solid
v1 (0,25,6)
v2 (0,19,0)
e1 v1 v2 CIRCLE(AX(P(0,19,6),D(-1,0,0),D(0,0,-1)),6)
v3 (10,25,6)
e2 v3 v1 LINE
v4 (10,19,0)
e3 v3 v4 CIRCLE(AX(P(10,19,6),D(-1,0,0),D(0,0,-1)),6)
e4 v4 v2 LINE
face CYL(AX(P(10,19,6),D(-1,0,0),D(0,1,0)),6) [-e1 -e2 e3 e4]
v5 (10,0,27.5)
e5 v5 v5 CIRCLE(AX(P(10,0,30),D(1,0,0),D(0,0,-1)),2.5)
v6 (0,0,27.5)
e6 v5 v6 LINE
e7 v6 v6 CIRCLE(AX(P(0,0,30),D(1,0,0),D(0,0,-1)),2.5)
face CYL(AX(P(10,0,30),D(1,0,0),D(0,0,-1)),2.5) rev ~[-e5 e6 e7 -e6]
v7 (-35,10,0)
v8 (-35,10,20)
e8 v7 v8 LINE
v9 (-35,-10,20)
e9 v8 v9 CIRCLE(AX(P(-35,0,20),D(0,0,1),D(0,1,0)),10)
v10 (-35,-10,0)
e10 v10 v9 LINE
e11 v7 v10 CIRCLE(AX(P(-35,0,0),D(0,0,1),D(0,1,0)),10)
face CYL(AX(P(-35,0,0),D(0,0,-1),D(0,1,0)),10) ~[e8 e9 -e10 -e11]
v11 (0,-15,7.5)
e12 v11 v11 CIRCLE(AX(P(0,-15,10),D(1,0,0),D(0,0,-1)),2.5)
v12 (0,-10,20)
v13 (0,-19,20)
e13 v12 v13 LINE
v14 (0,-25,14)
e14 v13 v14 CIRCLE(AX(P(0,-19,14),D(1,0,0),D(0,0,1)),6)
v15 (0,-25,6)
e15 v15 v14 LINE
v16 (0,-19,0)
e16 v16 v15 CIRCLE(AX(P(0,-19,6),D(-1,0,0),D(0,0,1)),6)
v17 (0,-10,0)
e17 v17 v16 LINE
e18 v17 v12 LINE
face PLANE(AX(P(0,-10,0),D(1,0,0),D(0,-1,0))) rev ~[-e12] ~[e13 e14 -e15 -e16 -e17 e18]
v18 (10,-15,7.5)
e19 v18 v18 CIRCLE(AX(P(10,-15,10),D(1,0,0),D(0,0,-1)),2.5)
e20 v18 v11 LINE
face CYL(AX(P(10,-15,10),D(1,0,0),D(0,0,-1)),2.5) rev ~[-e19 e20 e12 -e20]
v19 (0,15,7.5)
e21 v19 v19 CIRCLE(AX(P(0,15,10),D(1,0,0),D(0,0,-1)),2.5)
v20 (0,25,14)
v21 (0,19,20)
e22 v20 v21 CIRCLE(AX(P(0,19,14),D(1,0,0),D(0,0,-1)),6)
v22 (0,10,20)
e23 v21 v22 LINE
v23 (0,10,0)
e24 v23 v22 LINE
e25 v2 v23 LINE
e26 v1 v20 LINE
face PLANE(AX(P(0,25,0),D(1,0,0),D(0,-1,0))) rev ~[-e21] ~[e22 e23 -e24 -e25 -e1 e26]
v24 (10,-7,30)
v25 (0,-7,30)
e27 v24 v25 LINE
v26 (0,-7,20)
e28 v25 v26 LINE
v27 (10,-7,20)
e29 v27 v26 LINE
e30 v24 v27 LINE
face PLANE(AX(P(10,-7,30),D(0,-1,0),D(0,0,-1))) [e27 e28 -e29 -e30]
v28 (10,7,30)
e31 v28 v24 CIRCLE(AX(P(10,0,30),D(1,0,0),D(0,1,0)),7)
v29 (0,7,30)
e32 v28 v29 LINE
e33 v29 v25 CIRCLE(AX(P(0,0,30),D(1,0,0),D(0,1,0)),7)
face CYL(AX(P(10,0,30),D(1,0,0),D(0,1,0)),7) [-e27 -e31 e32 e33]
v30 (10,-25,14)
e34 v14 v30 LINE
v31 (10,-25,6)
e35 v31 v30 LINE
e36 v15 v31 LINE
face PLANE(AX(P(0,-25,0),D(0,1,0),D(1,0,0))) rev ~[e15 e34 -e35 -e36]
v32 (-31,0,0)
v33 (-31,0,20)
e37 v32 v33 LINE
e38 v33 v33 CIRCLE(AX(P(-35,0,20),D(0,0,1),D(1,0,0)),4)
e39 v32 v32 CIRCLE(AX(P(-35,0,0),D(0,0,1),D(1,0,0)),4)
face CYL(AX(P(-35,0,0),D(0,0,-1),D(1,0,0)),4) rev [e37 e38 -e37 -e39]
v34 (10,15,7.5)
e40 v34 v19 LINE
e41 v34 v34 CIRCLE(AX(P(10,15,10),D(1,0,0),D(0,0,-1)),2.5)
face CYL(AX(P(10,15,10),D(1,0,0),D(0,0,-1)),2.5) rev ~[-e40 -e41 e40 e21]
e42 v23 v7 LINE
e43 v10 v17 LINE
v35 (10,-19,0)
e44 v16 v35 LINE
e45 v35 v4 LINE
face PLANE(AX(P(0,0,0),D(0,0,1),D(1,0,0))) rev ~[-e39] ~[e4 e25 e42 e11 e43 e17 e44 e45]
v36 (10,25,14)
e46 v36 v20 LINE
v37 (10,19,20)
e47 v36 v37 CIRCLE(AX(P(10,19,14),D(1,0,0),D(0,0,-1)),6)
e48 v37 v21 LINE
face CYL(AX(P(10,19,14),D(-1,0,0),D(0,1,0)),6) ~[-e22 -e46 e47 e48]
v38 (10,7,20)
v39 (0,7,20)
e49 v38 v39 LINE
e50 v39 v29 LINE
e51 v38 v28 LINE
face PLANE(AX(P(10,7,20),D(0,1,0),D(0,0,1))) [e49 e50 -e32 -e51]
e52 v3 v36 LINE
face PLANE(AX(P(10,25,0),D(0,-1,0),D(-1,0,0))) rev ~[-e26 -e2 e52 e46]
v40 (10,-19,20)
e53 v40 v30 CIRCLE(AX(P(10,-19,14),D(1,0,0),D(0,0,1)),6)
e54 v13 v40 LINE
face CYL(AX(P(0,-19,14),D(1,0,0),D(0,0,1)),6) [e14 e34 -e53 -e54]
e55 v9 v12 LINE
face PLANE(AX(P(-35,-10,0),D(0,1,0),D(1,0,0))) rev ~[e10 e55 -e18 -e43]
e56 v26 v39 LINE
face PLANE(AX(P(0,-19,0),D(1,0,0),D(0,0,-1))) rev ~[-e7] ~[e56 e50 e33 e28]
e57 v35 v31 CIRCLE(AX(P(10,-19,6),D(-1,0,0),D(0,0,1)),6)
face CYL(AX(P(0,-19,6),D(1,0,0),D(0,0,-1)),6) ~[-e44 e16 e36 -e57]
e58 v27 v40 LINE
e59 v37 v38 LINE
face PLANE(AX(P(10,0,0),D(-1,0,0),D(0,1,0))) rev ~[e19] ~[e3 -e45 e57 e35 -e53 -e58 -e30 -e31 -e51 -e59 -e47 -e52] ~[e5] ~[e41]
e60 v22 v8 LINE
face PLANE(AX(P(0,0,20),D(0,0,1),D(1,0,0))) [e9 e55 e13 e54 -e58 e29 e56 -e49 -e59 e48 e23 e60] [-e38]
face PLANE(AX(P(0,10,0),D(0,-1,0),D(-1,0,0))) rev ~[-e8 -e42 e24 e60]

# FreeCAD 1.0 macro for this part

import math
import FreeCAD as App
import Part
import Sketcher
Q = App.Units.Quantity


def edges_at(feature, points):
    """Names of the edges that pass closest to the given points."""
    edges = feature.Shape.Edges
    near = lambda p: min(range(len(edges)), key=lambda i: edges[i].distToShape(Part.Vertex(*p))[0])
    return sorted({f"Edge{near(p) + 1}" for p in points})

doc = App.newDocument("Part")
body = doc.addObject("PartDesign::Body", "Body")

# Sketch on XY plane
sketch1 = body.newObject("Sketcher::SketchObject", "Sketch")
sketch1.AttachmentSupport = (doc.getObject("XY_Plane"), [""])
sketch1.MapMode = "FlatFace"
sketch1.addGeometry([
    Part.LineSegment(App.Vector(10, 25, 0), App.Vector(0, 25, 0)),  # 0
    Part.LineSegment(App.Vector(0, 25, 0), App.Vector(0, 10, 0)),  # 1
    Part.LineSegment(App.Vector(0, 10, 0), App.Vector(-35, 10, 0)),  # 2
    Part.ArcOfCircle(Part.Circle(App.Vector(-35, 0, 0), App.Vector(0, 0, 1), 10), math.radians(90), math.radians(270)),  # 3
    Part.LineSegment(App.Vector(-35, -10, 0), App.Vector(0, -10, 0)),  # 4
    Part.LineSegment(App.Vector(0, -10, 0), App.Vector(0, -25, 0)),  # 5
    Part.LineSegment(App.Vector(0, -25, 0), App.Vector(10, -25, 0)),  # 6
    Part.LineSegment(App.Vector(10, -25, 0), App.Vector(10, 25, 0)),  # 7
    Part.Circle(App.Vector(-35, 0, 0), App.Vector(0, 0, 1), 4),  # 8
], False)
sketch1.addConstraint([
    Sketcher.Constraint("Coincident", 0, 2, 1, 1),
    Sketcher.Constraint("Coincident", 1, 2, 2, 1),
    Sketcher.Constraint("Tangent", 2, 2, 3, 1),
    Sketcher.Constraint("Tangent", 3, 2, 4, 1),
    Sketcher.Constraint("Coincident", 4, 2, 5, 1),
    Sketcher.Constraint("Coincident", 5, 2, 6, 1),
    Sketcher.Constraint("Coincident", 6, 2, 7, 1),
    Sketcher.Constraint("Coincident", 7, 2, 0, 1),
    Sketcher.Constraint("Horizontal", 0),
    Sketcher.Constraint("Vertical", 1),
    Sketcher.Constraint("Horizontal", 2),
    Sketcher.Constraint("Horizontal", 4),
    Sketcher.Constraint("Vertical", 5),
    Sketcher.Constraint("Horizontal", 6),
    Sketcher.Constraint("Vertical", 7),
    Sketcher.Constraint("Coincident", 8, 3, 3, 3),
    Sketcher.Constraint("Symmetric", 1, 2, 4, 2, -1, 1),
    Sketcher.Constraint("Symmetric", 0, 2, 5, 2, -1),
    Sketcher.Constraint("Diameter", 8, Q("8 mm")),
    Sketcher.Constraint("Radius", 3, Q("10 mm")),
    Sketcher.Constraint("DistanceX", 0, 2, 0, 1, Q("10 mm")),
    Sketcher.Constraint("DistanceX", 2, 2, 2, 1, Q("35 mm")),
    Sketcher.Constraint("DistanceY", 7, 1, 7, 2, Q("50 mm")),
])
pad1 = body.newObject("PartDesign::Pad", "Pad")
pad1.Profile = sketch1
pad1.Length = 20

# Sketch on YZ plane
sketch2 = body.newObject("Sketcher::SketchObject", "Sketch001")
sketch2.AttachmentSupport = (doc.getObject("YZ_Plane"), [""])
sketch2.MapMode = "FlatFace"
sketch2.AttachmentOffset = App.Placement(App.Vector(0, 0, 10), App.Rotation())
sketch2.addGeometry([
    Part.Circle(App.Vector(15, 10, 0), App.Vector(0, 0, 1), 2.5),
    Part.Circle(App.Vector(-15, 10, 0), App.Vector(0, 0, 1), 2.5),
], False)
sketch2.addConstraint([
    Sketcher.Constraint("Equal", 0, 1),
    Sketcher.Constraint("Symmetric", 0, 3, 1, 3, -2),
    Sketcher.Constraint("Diameter", 0, Q("5 mm")),
    Sketcher.Constraint("DistanceY", -1, 1, 0, 3, Q("10 mm")),
    Sketcher.Constraint("DistanceX", -1, 1, 0, 3, Q("15 mm")),
])
pocket1 = body.newObject("PartDesign::Pocket", "Pocket")
pocket1.Profile = sketch2
pocket1.Type = "ThroughAll"
doc.recompute()

fillet = body.newObject("PartDesign::Fillet", "Fillet")
fillet.Base = (pocket1, edges_at(pocket1, [
    (5, 25, 20),
    (5, 25, 0),
    (5, -25, 20),
    (5, -25, 0),
]))
fillet.Radius = 6

# Sketch on YZ plane
sketch3 = body.newObject("Sketcher::SketchObject", "Sketch002")
sketch3.AttachmentSupport = (doc.getObject("YZ_Plane"), [""])
sketch3.MapMode = "FlatFace"
sketch3.AttachmentOffset = App.Placement(App.Vector(0, 0, 10), App.Rotation())
sketch3.addGeometry([
    Part.ArcOfCircle(Part.Circle(App.Vector(0, 20, 0), App.Vector(0, 0, 1), 7), math.radians(180), math.radians(360)),  # 0
    Part.LineSegment(App.Vector(7, 20, 0), App.Vector(7, 30, 0)),  # 1
    Part.ArcOfCircle(Part.Circle(App.Vector(0, 30, 0), App.Vector(0, 0, 1), 7), math.radians(0), math.radians(180)),  # 2
    Part.LineSegment(App.Vector(-7, 30, 0), App.Vector(-7, 20, 0)),  # 3
    Part.Circle(App.Vector(0, 30, 0), App.Vector(0, 0, 1), 2.5),  # 4
], False)
sketch3.addConstraint([
    Sketcher.Constraint("Tangent", 0, 2, 1, 1),
    Sketcher.Constraint("Tangent", 1, 2, 2, 1),
    Sketcher.Constraint("Tangent", 2, 2, 3, 1),
    Sketcher.Constraint("Tangent", 3, 2, 0, 1),
    Sketcher.Constraint("Vertical", 1),
    Sketcher.Constraint("Vertical", 3),
    Sketcher.Constraint("Coincident", 4, 3, 2, 3),
    Sketcher.Constraint("PointOnObject", 0, 3, -2),
    Sketcher.Constraint("Diameter", 4, Q("5 mm")),
    Sketcher.Constraint("Radius", 0, Q("7 mm")),
    Sketcher.Constraint("DistanceY", 1, 1, 1, 2, Q("10 mm")),
    Sketcher.Constraint("DistanceY", -1, 1, 0, 3, Q("20 mm")),
])
pad2 = body.newObject("PartDesign::Pad", "Pad001")
pad2.Profile = sketch3
pad2.Length = 10
pad2.Reversed = True

doc.recompute()
